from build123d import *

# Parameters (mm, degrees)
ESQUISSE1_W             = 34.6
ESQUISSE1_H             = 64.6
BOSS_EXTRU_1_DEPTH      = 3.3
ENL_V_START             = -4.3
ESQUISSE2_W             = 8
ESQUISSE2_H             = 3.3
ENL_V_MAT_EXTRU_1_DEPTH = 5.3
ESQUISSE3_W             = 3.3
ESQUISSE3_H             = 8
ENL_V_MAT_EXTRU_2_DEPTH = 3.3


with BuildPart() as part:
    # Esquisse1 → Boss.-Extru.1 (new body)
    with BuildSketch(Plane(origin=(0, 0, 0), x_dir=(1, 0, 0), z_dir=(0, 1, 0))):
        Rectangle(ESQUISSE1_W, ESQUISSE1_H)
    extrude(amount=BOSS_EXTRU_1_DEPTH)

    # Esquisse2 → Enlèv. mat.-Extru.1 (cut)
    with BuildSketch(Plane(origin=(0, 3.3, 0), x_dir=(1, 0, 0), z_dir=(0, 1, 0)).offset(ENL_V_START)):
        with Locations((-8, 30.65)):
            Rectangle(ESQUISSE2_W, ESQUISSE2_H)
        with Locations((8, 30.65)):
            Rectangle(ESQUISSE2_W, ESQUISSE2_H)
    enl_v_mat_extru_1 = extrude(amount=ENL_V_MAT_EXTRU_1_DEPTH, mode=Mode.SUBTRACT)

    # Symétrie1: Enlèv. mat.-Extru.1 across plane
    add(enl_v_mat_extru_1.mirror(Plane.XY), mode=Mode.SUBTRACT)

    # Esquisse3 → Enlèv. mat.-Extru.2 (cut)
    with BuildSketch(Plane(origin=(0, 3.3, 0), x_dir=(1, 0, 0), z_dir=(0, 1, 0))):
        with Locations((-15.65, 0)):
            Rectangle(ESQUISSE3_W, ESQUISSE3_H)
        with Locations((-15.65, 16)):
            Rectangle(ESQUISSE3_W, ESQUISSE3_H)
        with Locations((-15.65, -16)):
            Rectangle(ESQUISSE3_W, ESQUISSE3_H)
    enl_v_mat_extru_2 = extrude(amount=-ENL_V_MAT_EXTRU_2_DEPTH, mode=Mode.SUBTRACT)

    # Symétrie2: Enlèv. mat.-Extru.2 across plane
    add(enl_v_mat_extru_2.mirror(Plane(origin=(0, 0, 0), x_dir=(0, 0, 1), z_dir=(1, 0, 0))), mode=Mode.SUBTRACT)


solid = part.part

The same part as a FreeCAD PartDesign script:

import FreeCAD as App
import Part
import Sketcher
Q = App.Units.Quantity


def add_polygon(sketch, points):
    """Adds a closed chain of lines whose ends are joined by coincident constraints."""
    first, n = sketch.GeometryCount, len(points)
    for a, b in zip(points, points[1:] + points[:1]):
        sketch.addGeometry(Part.LineSegment(App.Vector(*a, 0), App.Vector(*b, 0)), False)
    for i in range(n):
        sketch.addConstraint(Sketcher.Constraint("Coincident", first + i, 2, first + (i + 1) % n, 1))

doc = App.newDocument("Part")
body = doc.addObject("PartDesign::Body", "Body")

# Sketch on XZ plane
sketch1 = body.newObject("Sketcher::SketchObject", "Sketch")
sketch1.AttachmentSupport = (doc.getObject("XZ_Plane"), [""])
sketch1.MapMode = "FlatFace"
add_polygon(sketch1, [(-17, -32), (-17, 32), (17, 32), (17, -32)])  # lines 0-3
sketch1.addConstraint([
    Sketcher.Constraint("Vertical", 0),
    Sketcher.Constraint("Horizontal", 1),
    Sketcher.Constraint("Vertical", 2),
    Sketcher.Constraint("Horizontal", 3),
    Sketcher.Constraint("Symmetric", 0, 2, 2, 2, -1, 1),
    Sketcher.Constraint("DistanceX", 1, 1, 1, 2, Q("34.6 mm")),
    Sketcher.Constraint("DistanceY", 0, 1, 0, 2, Q("64.6 mm")),
])
pad1 = body.newObject("PartDesign::Pad", "Pad")
pad1.Profile = sketch1
pad1.Length = 3.3
pad1.Reversed = True

# Sketch on XZ plane
sketch2 = body.newObject("Sketcher::SketchObject", "Sketch001")
sketch2.AttachmentSupport = (doc.getObject("XZ_Plane"), [""])
sketch2.MapMode = "FlatFace"
sketch2.AttachmentOffset = App.Placement(App.Vector(0, 0, 1), App.Rotation())
add_polygon(sketch2, [(-12, -32.3), (-12, -29), (-4, -29), (-4, -32.3)])  # lines 0-3
add_polygon(sketch2, [(4, -32.3), (4, -29), (12, -29), (12, -32.3)])  # lines 4-7
sketch2.addConstraint([
    Sketcher.Constraint("Vertical", 0),
    Sketcher.Constraint("Horizontal", 1),
    Sketcher.Constraint("Vertical", 2),
    Sketcher.Constraint("Horizontal", 3),
    Sketcher.Constraint("Vertical", 4),
    Sketcher.Constraint("Horizontal", 5),
    Sketcher.Constraint("Vertical", 6),
    Sketcher.Constraint("Horizontal", 7),
    Sketcher.Constraint("Symmetric", 1, 2, 4, 2, -2),
    Sketcher.Constraint("Symmetric", 3, 2, 6, 2, -2),
    Sketcher.Constraint("DistanceX", 1, 1, 1, 2, Q("8 mm")),
    Sketcher.Constraint("DistanceY", 0, 1, 0, 2, Q("3.3 mm")),
    Sketcher.Constraint("DistanceX", 0, 2, -1, 1, Q("12 mm")),
    Sketcher.Constraint("DistanceY", 0, 2, -1, 1, Q("29 mm")),
])
pocket1 = body.newObject("PartDesign::Pocket", "Pocket")
pocket1.Profile = sketch2
pocket1.Length = 5.3
doc.recompute()

mirrored = body.newObject("PartDesign::Mirrored", "Mirrored")
mirrored.Originals = [pocket1]
mirrored.MirrorPlane = (doc.getObject("XY_Plane"), [""])
body.Tip = mirrored

# Sketch on XZ plane
sketch3 = body.newObject("Sketcher::SketchObject", "Sketch002")
sketch3.AttachmentSupport = (doc.getObject("XZ_Plane"), [""])
sketch3.MapMode = "FlatFace"
sketch3.AttachmentOffset = App.Placement(App.Vector(0, 0, -3.3), App.Rotation())
add_polygon(sketch3, [(-17.3, -4), (-17.3, 4), (-14, 4), (-14, -4)])  # lines 0-3
add_polygon(sketch3, [(-17.3, -20), (-17.3, -12), (-14, -12), (-14, -20)])  # lines 4-7
add_polygon(sketch3, [(-17.3, 12), (-17.3, 20), (-14, 20), (-14, 12)])  # lines 8-11
sketch3.addConstraint([
    Sketcher.Constraint("Vertical", 0),
    Sketcher.Constraint("Horizontal", 1),
    Sketcher.Constraint("Vertical", 2),
    Sketcher.Constraint("Horizontal", 3),
    Sketcher.Constraint("Vertical", 4),
    Sketcher.Constraint("Horizontal", 5),
    Sketcher.Constraint("Vertical", 6),
    Sketcher.Constraint("Horizontal", 7),
    Sketcher.Constraint("Vertical", 8),
    Sketcher.Constraint("Horizontal", 9),
    Sketcher.Constraint("Vertical", 10),
    Sketcher.Constraint("Horizontal", 11),
    Sketcher.Constraint("Symmetric", 7, 2, 8, 2, -1),
    Sketcher.Constraint("Symmetric", 5, 2, 10, 2, -1),
    Sketcher.Constraint("Vertical", 3, 2, 4, 2),
    Sketcher.Constraint("Vertical", 2, 2, 5, 2),
    Sketcher.Constraint("Equal", 2, 4),
    Sketcher.Constraint("DistanceY", 0, 1, 0, 2, Q("8 mm")),
    Sketcher.Constraint("DistanceX", 1, 1, 1, 2, Q("3.3 mm")),
    Sketcher.Constraint("DistanceY", -1, 1, 0, 2, Q("4 mm")),
    Sketcher.Constraint("DistanceX", 1, 2, -1, 1, Q("14 mm")),
    Sketcher.Constraint("DistanceY", 4, 2, -1, 1, Q("12 mm")),
])
pocket2 = body.newObject("PartDesign::Pocket", "Pocket001")
pocket2.Profile = sketch3
pocket2.Length = 3.3
pocket2.Reversed = True
doc.recompute()

mirrored2 = body.newObject("PartDesign::Mirrored", "Mirrored001")
mirrored2.Originals = [pocket2]
mirrored2.MirrorPlane = (doc.getObject("YZ_Plane"), [""])
body.Tip = mirrored2

doc.recompute()
